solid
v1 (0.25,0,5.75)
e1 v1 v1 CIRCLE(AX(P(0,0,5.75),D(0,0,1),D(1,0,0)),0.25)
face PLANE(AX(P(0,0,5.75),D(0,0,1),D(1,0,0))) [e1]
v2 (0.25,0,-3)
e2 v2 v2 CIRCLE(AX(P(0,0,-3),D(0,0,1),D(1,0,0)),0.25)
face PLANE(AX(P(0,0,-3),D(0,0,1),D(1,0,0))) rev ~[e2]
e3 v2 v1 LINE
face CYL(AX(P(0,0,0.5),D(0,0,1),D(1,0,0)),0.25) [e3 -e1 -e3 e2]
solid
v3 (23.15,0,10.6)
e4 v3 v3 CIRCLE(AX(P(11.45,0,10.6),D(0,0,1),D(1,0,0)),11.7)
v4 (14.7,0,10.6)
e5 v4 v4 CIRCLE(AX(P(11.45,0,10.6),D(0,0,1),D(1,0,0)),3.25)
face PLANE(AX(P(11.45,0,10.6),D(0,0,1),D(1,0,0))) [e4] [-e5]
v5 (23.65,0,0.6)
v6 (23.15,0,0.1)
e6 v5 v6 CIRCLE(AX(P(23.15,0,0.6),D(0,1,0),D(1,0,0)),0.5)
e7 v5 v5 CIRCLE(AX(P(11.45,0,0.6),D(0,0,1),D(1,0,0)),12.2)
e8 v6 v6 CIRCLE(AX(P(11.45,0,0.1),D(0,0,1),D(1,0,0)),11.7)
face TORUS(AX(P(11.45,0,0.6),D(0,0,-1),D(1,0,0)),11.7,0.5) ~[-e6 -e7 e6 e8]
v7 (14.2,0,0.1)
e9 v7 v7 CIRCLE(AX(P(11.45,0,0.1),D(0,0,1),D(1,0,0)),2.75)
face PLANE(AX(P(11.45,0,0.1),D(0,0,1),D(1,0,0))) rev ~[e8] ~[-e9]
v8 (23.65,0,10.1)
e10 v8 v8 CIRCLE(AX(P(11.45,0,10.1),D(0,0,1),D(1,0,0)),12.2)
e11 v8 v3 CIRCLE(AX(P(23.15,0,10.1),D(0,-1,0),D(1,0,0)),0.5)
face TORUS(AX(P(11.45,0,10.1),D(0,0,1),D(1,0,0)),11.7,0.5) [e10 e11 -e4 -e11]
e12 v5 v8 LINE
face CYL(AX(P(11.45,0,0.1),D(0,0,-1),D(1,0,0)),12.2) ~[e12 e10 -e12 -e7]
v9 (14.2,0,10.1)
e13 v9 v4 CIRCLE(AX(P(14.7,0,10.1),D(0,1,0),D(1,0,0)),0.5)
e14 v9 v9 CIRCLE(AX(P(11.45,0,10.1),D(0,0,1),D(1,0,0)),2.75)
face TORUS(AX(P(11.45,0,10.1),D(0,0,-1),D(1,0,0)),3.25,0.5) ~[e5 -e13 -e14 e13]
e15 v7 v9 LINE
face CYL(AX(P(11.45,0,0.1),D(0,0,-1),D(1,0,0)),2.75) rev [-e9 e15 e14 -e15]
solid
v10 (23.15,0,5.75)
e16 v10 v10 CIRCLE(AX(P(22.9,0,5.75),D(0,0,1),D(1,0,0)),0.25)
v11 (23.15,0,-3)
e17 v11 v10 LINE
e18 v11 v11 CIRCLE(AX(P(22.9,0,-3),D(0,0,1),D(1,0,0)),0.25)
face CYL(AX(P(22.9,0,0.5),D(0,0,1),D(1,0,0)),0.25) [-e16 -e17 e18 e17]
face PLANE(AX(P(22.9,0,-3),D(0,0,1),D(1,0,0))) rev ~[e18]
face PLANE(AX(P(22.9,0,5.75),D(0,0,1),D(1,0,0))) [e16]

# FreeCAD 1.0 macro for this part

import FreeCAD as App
import Part
import Sketcher


def edges_at(feature, points):
    """Names of the edges that pass closest to the given points."""
    edges = feature.Shape.Edges
    near = lambda p: min(range(len(edges)), key=lambda i: edges[i].distToShape(Part.Vertex(*p))[0])
    return sorted({f"Edge{near(p) + 1}" for p in points})

doc = App.newDocument("Part")
body = doc.addObject("PartDesign::Body", "Body")
body.AllowCompound = True

sketch1 = body.newObject("Sketcher::SketchObject", "Sketch")
sketch1.AttachmentSupport = (doc.getObject("XY_Plane"), [""])
sketch1.MapMode = "FlatFace"
sketch1.AttachmentOffset = App.Placement(App.Vector(0, 0, 0.5), App.Rotation())
sketch1.addGeometry([
    Part.Circle(App.Vector(0, 0, 0), App.Vector(0, 0, 1), 0.25),
    Part.Circle(App.Vector(22.9, 0, 0), App.Vector(0, 0, 1), 0.25),
], False)
sketch1.addConstraint([
    Sketcher.Constraint("Coincident", 0, 3, -1, 1),
    Sketcher.Constraint("Equal", 0, 1),
    Sketcher.Constraint("PointOnObject", 1, 3, -1),
    Sketcher.Constraint("Diameter", 0, 0.5),
    Sketcher.Constraint("DistanceX", -1, 1, 1, 3, 22.9),
])
pad1 = body.newObject("PartDesign::Pad", "Pad")
pad1.Profile = sketch1
pad1.Type = "TwoLengths"
pad1.Length = 5.25
pad1.Length2 = 3.5
body2 = doc.addObject("PartDesign::Body", "Body001")

sketch2 = body2.newObject("Sketcher::SketchObject", "Sketch001")
sketch2.AttachmentSupport = (doc.getObject("XY_Plane001"), [""])
sketch2.MapMode = "FlatFace"
sketch2.AttachmentOffset = App.Placement(App.Vector(0, 0, 0.1), App.Rotation())
sketch2.addGeometry([
    Part.Circle(App.Vector(11.4, 0, 0), App.Vector(0, 0, 1), 12.2),
    Part.Circle(App.Vector(11.4, 0, 0), App.Vector(0, 0, 1), 2.8),
], False)
sketch2.addConstraint([
    Sketcher.Constraint("Coincident", 1, 3, 0, 3),
    Sketcher.Constraint("PointOnObject", 0, 3, -1),
    Sketcher.Constraint("Diameter", 0, 24.4),
    Sketcher.Constraint("Diameter", 1, 5.5),
    Sketcher.Constraint("DistanceX", -1, 1, 0, 3, 11.45),
])
pad2 = body2.newObject("PartDesign::Pad", "Pad001")
pad2.Profile = sketch2
pad2.Length = 10.5
doc.recompute()

fillet = body2.newObject("PartDesign::Fillet", "Fillet")
fillet.Base = (pad2, edges_at(pad2, [(8.7, 0, 10.6), (-0.75, 0, 10.6), (-0.75, 0, 0.1)]))
fillet.Radius = 0.5

doc.recompute()
